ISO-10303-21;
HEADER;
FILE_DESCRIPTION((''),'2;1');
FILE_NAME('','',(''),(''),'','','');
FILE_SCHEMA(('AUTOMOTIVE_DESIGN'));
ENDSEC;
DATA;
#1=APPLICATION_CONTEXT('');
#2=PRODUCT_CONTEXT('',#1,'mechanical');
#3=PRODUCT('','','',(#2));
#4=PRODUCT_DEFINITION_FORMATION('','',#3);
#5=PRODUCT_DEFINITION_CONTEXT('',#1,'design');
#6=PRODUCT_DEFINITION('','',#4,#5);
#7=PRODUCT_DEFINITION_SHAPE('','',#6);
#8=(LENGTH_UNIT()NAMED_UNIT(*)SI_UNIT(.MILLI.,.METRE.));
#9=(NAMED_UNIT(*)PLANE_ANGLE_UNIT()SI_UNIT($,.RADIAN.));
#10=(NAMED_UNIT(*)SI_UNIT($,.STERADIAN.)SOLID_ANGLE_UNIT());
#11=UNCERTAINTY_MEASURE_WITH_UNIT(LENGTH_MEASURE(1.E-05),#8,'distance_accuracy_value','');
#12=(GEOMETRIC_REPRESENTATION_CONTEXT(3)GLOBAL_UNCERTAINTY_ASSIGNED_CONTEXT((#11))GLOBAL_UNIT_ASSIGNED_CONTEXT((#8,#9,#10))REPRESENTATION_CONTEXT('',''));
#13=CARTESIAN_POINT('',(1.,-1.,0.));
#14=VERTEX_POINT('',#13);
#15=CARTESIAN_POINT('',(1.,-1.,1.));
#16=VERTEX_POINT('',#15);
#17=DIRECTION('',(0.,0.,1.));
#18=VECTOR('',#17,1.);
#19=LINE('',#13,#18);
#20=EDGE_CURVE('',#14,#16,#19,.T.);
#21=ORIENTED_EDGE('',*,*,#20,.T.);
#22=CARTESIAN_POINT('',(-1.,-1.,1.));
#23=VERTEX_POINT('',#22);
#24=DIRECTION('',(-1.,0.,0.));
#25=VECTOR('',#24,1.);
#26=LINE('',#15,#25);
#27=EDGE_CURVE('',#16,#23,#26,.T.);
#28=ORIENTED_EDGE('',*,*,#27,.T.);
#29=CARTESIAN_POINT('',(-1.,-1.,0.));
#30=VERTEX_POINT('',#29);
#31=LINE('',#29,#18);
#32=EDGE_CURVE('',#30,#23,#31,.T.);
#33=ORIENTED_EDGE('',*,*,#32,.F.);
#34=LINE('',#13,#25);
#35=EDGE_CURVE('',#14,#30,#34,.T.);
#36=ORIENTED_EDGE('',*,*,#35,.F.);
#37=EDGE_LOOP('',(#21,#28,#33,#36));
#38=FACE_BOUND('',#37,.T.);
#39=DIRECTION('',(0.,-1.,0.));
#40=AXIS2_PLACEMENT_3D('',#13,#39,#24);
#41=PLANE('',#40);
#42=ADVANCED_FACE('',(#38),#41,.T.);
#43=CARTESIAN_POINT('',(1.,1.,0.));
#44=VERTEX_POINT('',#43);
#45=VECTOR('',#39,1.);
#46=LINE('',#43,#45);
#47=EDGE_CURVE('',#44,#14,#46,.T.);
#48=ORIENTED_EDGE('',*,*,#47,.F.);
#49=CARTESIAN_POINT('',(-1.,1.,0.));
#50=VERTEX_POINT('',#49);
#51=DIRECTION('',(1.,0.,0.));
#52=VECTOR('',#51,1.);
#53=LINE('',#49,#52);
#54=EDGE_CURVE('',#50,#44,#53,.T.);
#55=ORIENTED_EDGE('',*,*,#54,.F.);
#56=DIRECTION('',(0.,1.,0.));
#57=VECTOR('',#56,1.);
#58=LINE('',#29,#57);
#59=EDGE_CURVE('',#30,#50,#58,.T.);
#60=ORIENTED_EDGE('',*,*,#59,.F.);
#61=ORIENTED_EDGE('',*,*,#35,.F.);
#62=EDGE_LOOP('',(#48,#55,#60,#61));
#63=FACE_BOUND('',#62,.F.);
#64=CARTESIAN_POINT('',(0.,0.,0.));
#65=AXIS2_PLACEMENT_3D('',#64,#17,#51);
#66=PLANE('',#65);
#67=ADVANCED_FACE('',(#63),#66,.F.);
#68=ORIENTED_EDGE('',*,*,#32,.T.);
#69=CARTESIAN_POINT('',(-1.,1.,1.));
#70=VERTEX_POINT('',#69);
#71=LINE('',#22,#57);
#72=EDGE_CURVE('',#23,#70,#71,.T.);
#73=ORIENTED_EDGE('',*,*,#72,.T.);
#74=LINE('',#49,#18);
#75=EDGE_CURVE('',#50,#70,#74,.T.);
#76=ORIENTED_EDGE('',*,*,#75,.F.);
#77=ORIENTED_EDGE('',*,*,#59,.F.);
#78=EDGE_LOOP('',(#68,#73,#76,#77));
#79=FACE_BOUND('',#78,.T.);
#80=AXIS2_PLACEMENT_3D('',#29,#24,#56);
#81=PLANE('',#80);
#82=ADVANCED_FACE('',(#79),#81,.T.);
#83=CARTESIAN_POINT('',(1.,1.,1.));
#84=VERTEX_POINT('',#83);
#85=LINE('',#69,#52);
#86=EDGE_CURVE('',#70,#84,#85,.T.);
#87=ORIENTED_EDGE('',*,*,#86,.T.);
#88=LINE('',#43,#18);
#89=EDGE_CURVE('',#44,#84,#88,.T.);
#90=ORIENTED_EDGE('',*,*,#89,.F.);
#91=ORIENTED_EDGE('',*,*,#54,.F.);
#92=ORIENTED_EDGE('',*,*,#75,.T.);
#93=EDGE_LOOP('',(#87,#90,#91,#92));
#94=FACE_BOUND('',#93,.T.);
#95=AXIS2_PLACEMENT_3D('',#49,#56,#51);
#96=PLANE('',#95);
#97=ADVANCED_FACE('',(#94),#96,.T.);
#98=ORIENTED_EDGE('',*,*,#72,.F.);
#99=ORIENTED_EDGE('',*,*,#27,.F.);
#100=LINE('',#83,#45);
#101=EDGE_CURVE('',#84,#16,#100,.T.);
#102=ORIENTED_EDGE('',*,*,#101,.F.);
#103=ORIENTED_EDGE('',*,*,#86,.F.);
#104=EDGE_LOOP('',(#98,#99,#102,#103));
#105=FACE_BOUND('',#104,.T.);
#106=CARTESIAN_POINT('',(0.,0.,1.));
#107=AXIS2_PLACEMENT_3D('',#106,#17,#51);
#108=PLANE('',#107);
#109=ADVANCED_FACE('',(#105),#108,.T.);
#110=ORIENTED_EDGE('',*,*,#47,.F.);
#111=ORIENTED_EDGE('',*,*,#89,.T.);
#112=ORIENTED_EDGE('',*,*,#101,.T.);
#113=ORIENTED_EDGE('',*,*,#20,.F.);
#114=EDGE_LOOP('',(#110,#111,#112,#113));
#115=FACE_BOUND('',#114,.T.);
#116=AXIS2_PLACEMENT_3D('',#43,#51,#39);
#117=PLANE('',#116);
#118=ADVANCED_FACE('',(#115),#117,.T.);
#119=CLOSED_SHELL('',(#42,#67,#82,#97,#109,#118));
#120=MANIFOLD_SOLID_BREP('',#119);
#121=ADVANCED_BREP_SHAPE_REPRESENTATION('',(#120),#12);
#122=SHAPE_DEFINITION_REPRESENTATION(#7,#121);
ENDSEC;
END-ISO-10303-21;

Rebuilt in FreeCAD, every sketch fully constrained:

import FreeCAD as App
import Part
import Sketcher

doc = App.newDocument("Part")
body = doc.addObject("PartDesign::Body", "Body")

sketch1 = doc.addObject("Sketcher::SketchObject", "Sketch")
body.addObject(sketch1)
sketch1.AttachmentSupport = (doc.XY_Plane, [""])
sketch1.MapMode = "FlatFace"
sketch1.addGeometry([
    Part.LineSegment(App.Vector(-1, -1, 0), App.Vector(1, -1, 0)),
    Part.LineSegment(App.Vector(1, -1, 0), App.Vector(1, 1, 0)),
    Part.LineSegment(App.Vector(1, 1, 0), App.Vector(-1, 1, 0)),
    Part.LineSegment(App.Vector(-1, 1, 0), App.Vector(-1, -1, 0)),
], False)
sketch1.addConstraint([
    Sketcher.Constraint("Coincident", 0, 2, 1, 1),
    Sketcher.Constraint("Coincident", 1, 2, 2, 1),
    Sketcher.Constraint("Coincident", 2, 2, 3, 1),
    Sketcher.Constraint("Coincident", 3, 2, 0, 1),
    Sketcher.Constraint("Horizontal", 0),
    Sketcher.Constraint("Vertical", 1),
    Sketcher.Constraint("Horizontal", 2),
    Sketcher.Constraint("Vertical", 3),
    Sketcher.Constraint("Symmetric", 0, 2, 2, 2, -1, 1),
    Sketcher.Constraint("Equal", 2, 1),
    Sketcher.Constraint("DistanceX", 0, 1, 0, 2, 2.0),
])
pad1 = doc.addObject("PartDesign::Pad", "Pad")
body.addObject(pad1)
pad1.Profile = sketch1
pad1.Length = 1

doc.recompute()
